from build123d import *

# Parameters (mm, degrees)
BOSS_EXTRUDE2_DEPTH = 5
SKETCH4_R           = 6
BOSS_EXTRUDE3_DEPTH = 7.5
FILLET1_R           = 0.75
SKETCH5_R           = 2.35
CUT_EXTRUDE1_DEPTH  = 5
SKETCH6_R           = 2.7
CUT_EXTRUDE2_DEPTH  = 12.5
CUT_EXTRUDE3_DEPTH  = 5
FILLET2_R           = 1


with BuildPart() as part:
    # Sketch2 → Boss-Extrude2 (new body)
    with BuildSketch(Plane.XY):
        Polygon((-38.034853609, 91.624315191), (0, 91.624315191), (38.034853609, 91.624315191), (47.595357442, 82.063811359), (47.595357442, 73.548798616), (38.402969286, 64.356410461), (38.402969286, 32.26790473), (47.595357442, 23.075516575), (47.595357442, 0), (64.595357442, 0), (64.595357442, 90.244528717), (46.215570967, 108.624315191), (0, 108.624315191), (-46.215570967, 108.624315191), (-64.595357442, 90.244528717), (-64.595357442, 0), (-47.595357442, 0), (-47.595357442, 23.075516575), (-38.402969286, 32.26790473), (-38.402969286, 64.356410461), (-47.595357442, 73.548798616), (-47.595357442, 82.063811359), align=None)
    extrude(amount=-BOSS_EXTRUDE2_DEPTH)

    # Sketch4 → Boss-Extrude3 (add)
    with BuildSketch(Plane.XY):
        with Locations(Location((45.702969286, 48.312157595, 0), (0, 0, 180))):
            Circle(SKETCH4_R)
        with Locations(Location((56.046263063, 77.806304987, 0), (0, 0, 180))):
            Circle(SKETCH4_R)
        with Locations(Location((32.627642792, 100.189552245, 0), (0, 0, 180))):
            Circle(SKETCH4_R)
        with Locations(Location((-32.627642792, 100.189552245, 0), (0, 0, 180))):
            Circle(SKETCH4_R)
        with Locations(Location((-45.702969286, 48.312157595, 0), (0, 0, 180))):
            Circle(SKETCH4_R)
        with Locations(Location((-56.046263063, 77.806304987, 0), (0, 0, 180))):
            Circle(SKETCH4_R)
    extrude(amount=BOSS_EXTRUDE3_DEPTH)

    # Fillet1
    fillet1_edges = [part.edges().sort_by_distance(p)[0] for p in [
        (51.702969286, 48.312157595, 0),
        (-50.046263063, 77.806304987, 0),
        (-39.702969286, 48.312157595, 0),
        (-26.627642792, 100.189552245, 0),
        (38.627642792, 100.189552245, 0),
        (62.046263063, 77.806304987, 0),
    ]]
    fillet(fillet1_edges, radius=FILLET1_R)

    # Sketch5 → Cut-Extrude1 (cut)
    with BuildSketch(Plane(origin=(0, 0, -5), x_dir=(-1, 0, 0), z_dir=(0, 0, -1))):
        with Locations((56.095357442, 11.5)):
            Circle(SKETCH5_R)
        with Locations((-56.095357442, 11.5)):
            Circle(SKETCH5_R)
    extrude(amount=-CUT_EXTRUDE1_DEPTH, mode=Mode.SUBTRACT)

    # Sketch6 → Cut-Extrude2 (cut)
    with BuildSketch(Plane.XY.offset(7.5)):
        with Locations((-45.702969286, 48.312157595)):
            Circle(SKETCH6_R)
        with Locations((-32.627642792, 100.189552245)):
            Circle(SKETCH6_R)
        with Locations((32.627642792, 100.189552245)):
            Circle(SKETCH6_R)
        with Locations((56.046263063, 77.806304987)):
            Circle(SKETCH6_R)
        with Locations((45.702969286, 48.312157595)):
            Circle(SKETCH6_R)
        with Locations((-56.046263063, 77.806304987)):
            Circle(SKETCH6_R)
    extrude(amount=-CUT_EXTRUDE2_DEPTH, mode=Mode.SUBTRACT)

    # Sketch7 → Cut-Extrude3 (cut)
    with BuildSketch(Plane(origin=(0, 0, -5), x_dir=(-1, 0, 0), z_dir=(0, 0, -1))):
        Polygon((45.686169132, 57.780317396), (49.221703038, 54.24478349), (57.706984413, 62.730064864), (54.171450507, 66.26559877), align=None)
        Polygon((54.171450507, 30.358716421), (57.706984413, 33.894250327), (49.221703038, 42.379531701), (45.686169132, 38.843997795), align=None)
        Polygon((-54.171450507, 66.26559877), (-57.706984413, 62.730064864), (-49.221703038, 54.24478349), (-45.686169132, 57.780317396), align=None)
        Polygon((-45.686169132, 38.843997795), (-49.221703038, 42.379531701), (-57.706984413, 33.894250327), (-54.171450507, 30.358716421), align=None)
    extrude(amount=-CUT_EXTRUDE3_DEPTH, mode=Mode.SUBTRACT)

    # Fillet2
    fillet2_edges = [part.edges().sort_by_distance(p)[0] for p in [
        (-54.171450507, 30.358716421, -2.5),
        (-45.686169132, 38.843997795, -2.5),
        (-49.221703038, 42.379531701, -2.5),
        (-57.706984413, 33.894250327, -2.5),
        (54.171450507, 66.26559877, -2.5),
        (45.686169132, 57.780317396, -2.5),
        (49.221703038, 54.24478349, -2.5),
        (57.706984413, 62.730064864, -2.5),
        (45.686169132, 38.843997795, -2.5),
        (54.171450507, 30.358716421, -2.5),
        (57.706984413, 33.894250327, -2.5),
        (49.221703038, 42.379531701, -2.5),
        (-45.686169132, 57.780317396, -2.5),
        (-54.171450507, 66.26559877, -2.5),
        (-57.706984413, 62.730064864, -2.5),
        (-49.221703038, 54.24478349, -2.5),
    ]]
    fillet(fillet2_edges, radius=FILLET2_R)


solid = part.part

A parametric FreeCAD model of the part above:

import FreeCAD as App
import Part
import Sketcher
Q = App.Units.Quantity


def edges_at(feature, points):
    """Names of the edges that pass closest to the given points."""
    edges = feature.Shape.Edges
    near = lambda p: min(range(len(edges)), key=lambda i: edges[i].distToShape(Part.Vertex(*p))[0])
    return sorted({f"Edge{near(p) + 1}" for p in points})


def add_polygon(sketch, points):
    """Adds a closed chain of lines whose ends are joined by coincident constraints."""
    first, n = sketch.GeometryCount, len(points)
    for a, b in zip(points, points[1:] + points[:1]):
        sketch.addGeometry(Part.LineSegment(App.Vector(*a, 0), App.Vector(*b, 0)), False)
    for i in range(n):
        sketch.addConstraint(Sketcher.Constraint("Coincident", first + i, 2, first + (i + 1) % n, 1))

doc = App.newDocument("Part")
body = doc.addObject("PartDesign::Body", "Body")

# Sketch on XY plane
sketch1 = body.newObject("Sketcher::SketchObject", "Sketch")
sketch1.AttachmentSupport = (doc.getObject("XY_Plane"), [""])
sketch1.MapMode = "FlatFace"
add_polygon(sketch1, [(-38.034854, 91.624315), (38.034854, 91.624315), (47.595357, 82.063811), (47.595357, 73.548799), (38.402969, 64.35641), (38.402969, 32.267905), (47.595357, 23.075517), (47.595357, 0), (64.595357, 0), (64.595357, 90.244529), (46.215571, 108.624315), (-46.215571, 108.624315), (-64.595357, 90.244529), (-64.595357, 0), (-47.595357, 0), (-47.595357, 23.075517), (-38.402969, 32.267905), (-38.402969, 64.35641), (-47.595357, 73.548799), (-47.595357, 82.063811)])  # lines 0-19
sketch1.addConstraint(Sketcher.Constraint("Horizontal", 0))
sketch1.addConstraint(Sketcher.Constraint("Vertical", 2))
sketch1.addConstraint(Sketcher.Constraint("Vertical", 4))
sketch1.addConstraint(Sketcher.Constraint("Vertical", 6))
sketch1.addConstraint(Sketcher.Constraint("Horizontal", 7))
sketch1.addConstraint(Sketcher.Constraint("Vertical", 8))
sketch1.addConstraint(Sketcher.Constraint("Horizontal", 10))
sketch1.addConstraint(Sketcher.Constraint("Vertical", 12))
sketch1.addConstraint(Sketcher.Constraint("Horizontal", 13))
sketch1.addConstraint(Sketcher.Constraint("Vertical", 14))
sketch1.addConstraint(Sketcher.Constraint("Vertical", 16))
sketch1.addConstraint(Sketcher.Constraint("Vertical", 18))
sketch1.addConstraint(Sketcher.Constraint("Symmetric", 7, 2, 12, 2, -1, 1))
sketch1.addConstraint(Sketcher.Constraint("Symmetric", 6, 2, 13, 2, -2))
sketch1.addConstraint(Sketcher.Constraint("Symmetric", 4, 2, 15, 2, -2))
sketch1.addConstraint(Sketcher.Constraint("Symmetric", 2, 2, 17, 2, -2))
sketch1.addConstraint(Sketcher.Constraint("Perpendicular", 1, 3))
sketch1.addConstraint(Sketcher.Constraint("Perpendicular", 3, 5))
sketch1.addConstraint(Sketcher.Constraint("Parallel", 5, 9))
sketch1.addConstraint(Sketcher.Constraint("Perpendicular", 9, 11))
sketch1.addConstraint(Sketcher.Constraint("Parallel", 11, 15))
sketch1.addConstraint(Sketcher.Constraint("Perpendicular", 15, 17))
sketch1.addConstraint(Sketcher.Constraint("Perpendicular", 17, 19))
sketch1.addConstraint(Sketcher.Constraint("Horizontal", 8, 2, 11, 2))
sketch1.addConstraint(Sketcher.Constraint("Horizontal", 5, 2, 14, 2))
sketch1.addConstraint(Sketcher.Constraint("Horizontal", 1, 2, 18, 2))
sketch1.addConstraint(Sketcher.Constraint("Vertical", 2, 2, 5, 2))
sketch1.addConstraint(Sketcher.Constraint("DistanceX", 7, 1, 7, 2, Q("17 mm")))
sketch1.addConstraint(Sketcher.Constraint("Distance", 3, Q("13 mm")))
sketch1.addConstraint(Sketcher.Constraint("DistanceY", 0, 2, 9, 2, Q("17 mm")))
sketch1.addConstraint(Sketcher.Constraint("DistanceX", 10, 2, 10, 1, Q("92.431142 mm")))
sketch1.addConstraint(Sketcher.Constraint("DistanceY", 8, 1, 8, 2, Q("90.244529 mm")))
sketch1.addConstraint(Sketcher.Constraint("DistanceY", -1, 1, 2, 2, Q("73.548799 mm")))
sketch1.addConstraint(Sketcher.Constraint("DistanceY", 3, 2, 1, 2, Q("17.707401 mm")))
sketch1.addConstraint(Sketcher.Constraint("DistanceY", 5, 2, 0, 2, Q("68.548799 mm")))
sketch1.addConstraint(Sketcher.Constraint("DistanceX", 3, 2, 9, 2, Q("7.812602 mm")))
pad1 = body.newObject("PartDesign::Pad", "Pad")
pad1.Profile = sketch1
pad1.Length = 5
pad1.Reversed = True

# Sketch on XY plane
sketch2 = body.newObject("Sketcher::SketchObject", "Sketch001")
sketch2.AttachmentSupport = (doc.getObject("XY_Plane"), [""])
sketch2.MapMode = "FlatFace"
sketch2.addGeometry(Part.Circle(App.Vector(45.702969, 48.312158, 0), App.Vector(0, 0, 1), 6), False)
sketch2.addGeometry(Part.Circle(App.Vector(56.046263, 77.806305, 0), App.Vector(0, 0, 1), 6), False)
sketch2.addGeometry(Part.Circle(App.Vector(32.627643, 100.189552, 0), App.Vector(0, 0, 1), 6), False)
sketch2.addGeometry(Part.Circle(App.Vector(-32.627643, 100.189552, 0), App.Vector(0, 0, 1), 6), False)
sketch2.addGeometry(Part.Circle(App.Vector(-45.702969, 48.312158, 0), App.Vector(0, 0, 1), 6), False)
sketch2.addGeometry(Part.Circle(App.Vector(-56.046263, 77.806305, 0), App.Vector(0, 0, 1), 6), False)
sketch2.addConstraint(Sketcher.Constraint("Equal", 0, 1))
sketch2.addConstraint(Sketcher.Constraint("Equal", 1, 2))
sketch2.addConstraint(Sketcher.Constraint("Equal", 2, 3))
sketch2.addConstraint(Sketcher.Constraint("Equal", 3, 4))
sketch2.addConstraint(Sketcher.Constraint("Equal", 4, 5))
sketch2.addConstraint(Sketcher.Constraint("Symmetric", 2, 3, 3, 3, -2))
sketch2.addConstraint(Sketcher.Constraint("Symmetric", 0, 3, 4, 3, -2))
sketch2.addConstraint(Sketcher.Constraint("Symmetric", 1, 3, 5, 3, -2))
sketch2.addConstraint(Sketcher.Constraint("Diameter", 0, Q("12 mm")))
sketch2.addConstraint(Sketcher.Constraint("DistanceX", -1, 1, 0, 3, Q("45.702969 mm")))
sketch2.addConstraint(Sketcher.Constraint("DistanceX", 2, 3, 1, 3, Q("23.41862 mm")))
sketch2.addConstraint(Sketcher.Constraint("DistanceY", -1, 1, 0, 3, Q("48.312158 mm")))
sketch2.addConstraint(Sketcher.Constraint("DistanceX", -1, 1, 1, 3, Q("56.046263 mm")))
sketch2.addConstraint(Sketcher.Constraint("DistanceY", -1, 1, 1, 3, Q("77.806305 mm")))
sketch2.addConstraint(Sketcher.Constraint("DistanceY", -1, 1, 2, 3, Q("100.189552 mm")))
pad2 = body.newObject("PartDesign::Pad", "Pad001")
pad2.Profile = sketch2
pad2.Length = 7.5
doc.recompute()

fillet = body.newObject("PartDesign::Fillet", "Fillet")
fillet.Base = (pad2, edges_at(pad2, [
    (51.703, 48.312, 0),
    (-50.046, 77.806, 0),
    (-39.703, 48.312, 0),
    (-26.628, 100.19, 0),
    (38.628, 100.19, 0),
    (62.046, 77.806, 0),
]))
fillet.Radius = 0.75

# Sketch on XY plane
sketch3 = body.newObject("Sketcher::SketchObject", "Sketch002")
sketch3.AttachmentSupport = (doc.getObject("XY_Plane"), [""])
sketch3.MapMode = "FlatFace"
sketch3.AttachmentOffset = App.Placement(App.Vector(0, 0, -5), App.Rotation())
sketch3.addGeometry(Part.Circle(App.Vector(-56.095357, 11.5, 0), App.Vector(0, 0, 1), 2.35), False)
sketch3.addGeometry(Part.Circle(App.Vector(56.095357, 11.5, 0), App.Vector(0, 0, 1), 2.35), False)
sketch3.addConstraint(Sketcher.Constraint("Equal", 0, 1))
sketch3.addConstraint(Sketcher.Constraint("Symmetric", 0, 3, 1, 3, -2))
sketch3.addConstraint(Sketcher.Constraint("Diameter", 0, Q("4.7 mm")))
sketch3.addConstraint(Sketcher.Constraint("DistanceY", -1, 1, 0, 3, Q("11.5 mm")))
sketch3.addConstraint(Sketcher.Constraint("DistanceX", 0, 3, -1, 1, Q("56.095357 mm")))
pocket1 = body.newObject("PartDesign::Pocket", "Pocket")
pocket1.Profile = sketch3
pocket1.Length = 5
pocket1.Reversed = True

# Sketch on XY plane
sketch4 = body.newObject("Sketcher::SketchObject", "Sketch003")
sketch4.AttachmentSupport = (doc.getObject("XY_Plane"), [""])
sketch4.MapMode = "FlatFace"
sketch4.AttachmentOffset = App.Placement(App.Vector(0, 0, 7.5), App.Rotation())
sketch4.addGeometry(Part.Circle(App.Vector(-45.702969, 48.312158, 0), App.Vector(0, 0, 1), 2.7), False)
sketch4.addGeometry(Part.Circle(App.Vector(-32.627643, 100.189552, 0), App.Vector(0, 0, 1), 2.7), False)
sketch4.addGeometry(Part.Circle(App.Vector(32.627643, 100.189552, 0), App.Vector(0, 0, 1), 2.7), False)
sketch4.addGeometry(Part.Circle(App.Vector(56.046263, 77.806305, 0), App.Vector(0, 0, 1), 2.7), False)
sketch4.addGeometry(Part.Circle(App.Vector(45.702969, 48.312158, 0), App.Vector(0, 0, 1), 2.7), False)
sketch4.addGeometry(Part.Circle(App.Vector(-56.046263, 77.806305, 0), App.Vector(0, 0, 1), 2.7), False)
sketch4.addConstraint(Sketcher.Constraint("Equal", 0, 1))
sketch4.addConstraint(Sketcher.Constraint("Equal", 1, 2))
sketch4.addConstraint(Sketcher.Constraint("Equal", 2, 3))
sketch4.addConstraint(Sketcher.Constraint("Equal", 3, 4))
sketch4.addConstraint(Sketcher.Constraint("Equal", 4, 5))
sketch4.addConstraint(Sketcher.Constraint("Symmetric", 1, 3, 2, 3, -2))
sketch4.addConstraint(Sketcher.Constraint("Symmetric", 0, 3, 4, 3, -2))
sketch4.addConstraint(Sketcher.Constraint("Symmetric", 3, 3, 5, 3, -2))
sketch4.addConstraint(Sketcher.Constraint("Diameter", 0, Q("5.4 mm")))
sketch4.addConstraint(Sketcher.Constraint("DistanceX", 0, 3, -1, 1, Q("45.702969 mm")))
sketch4.addConstraint(Sketcher.Constraint("DistanceX", 2, 3, 3, 3, Q("23.41862 mm")))
sketch4.addConstraint(Sketcher.Constraint("DistanceY", -1, 1, 0, 3, Q("48.312158 mm")))
sketch4.addConstraint(Sketcher.Constraint("DistanceX", 1, 3, -1, 1, Q("32.627643 mm")))
sketch4.addConstraint(Sketcher.Constraint("DistanceY", -1, 1, 1, 3, Q("100.189552 mm")))
sketch4.addConstraint(Sketcher.Constraint("DistanceY", -1, 1, 3, 3, Q("77.806305 mm")))
pocket2 = body.newObject("PartDesign::Pocket", "Pocket001")
pocket2.Profile = sketch4
pocket2.Length = 12.5

# Sketch on XY plane
sketch5 = body.newObject("Sketcher::SketchObject", "Sketch004")
sketch5.AttachmentSupport = (doc.getObject("XY_Plane"), [""])
sketch5.MapMode = "FlatFace"
sketch5.AttachmentOffset = App.Placement(App.Vector(0, 0, -5), App.Rotation())
add_polygon(sketch5, [(-45.686169, 57.780317), (-49.221703, 54.244783), (-57.706984, 62.730065), (-54.171451, 66.265599)])  # lines 0-3
add_polygon(sketch5, [(-54.171451, 30.358716), (-57.706984, 33.89425), (-49.221703, 42.379532), (-45.686169, 38.843998)])  # lines 4-7
add_polygon(sketch5, [(54.171451, 66.265599), (57.706984, 62.730065), (49.221703, 54.244783), (45.686169, 57.780317)])  # lines 8-11
add_polygon(sketch5, [(45.686169, 38.843998), (49.221703, 42.379532), (57.706984, 33.89425), (54.171451, 30.358716)])  # lines 12-15
sketch5.addConstraint(Sketcher.Constraint("Symmetric", 1, 2, 8, 2, -2))
sketch5.addConstraint(Sketcher.Constraint("Symmetric", 0, 2, 9, 2, -2))
sketch5.addConstraint(Sketcher.Constraint("Symmetric", 3, 2, 10, 2, -2))
sketch5.addConstraint(Sketcher.Constraint("Symmetric", 2, 2, 11, 2, -2))
sketch5.addConstraint(Sketcher.Constraint("Symmetric", 5, 2, 12, 2, -2))
sketch5.addConstraint(Sketcher.Constraint("Symmetric", 4, 2, 13, 2, -2))
sketch5.addConstraint(Sketcher.Constraint("Symmetric", 7, 2, 14, 2, -2))
sketch5.addConstraint(Sketcher.Constraint("Symmetric", 6, 2, 15, 2, -2))
sketch5.addConstraint(Sketcher.Constraint("Perpendicular", 0, 1))
sketch5.addConstraint(Sketcher.Constraint("Perpendicular", 1, 2))
sketch5.addConstraint(Sketcher.Constraint("Perpendicular", 2, 3))
sketch5.addConstraint(Sketcher.Constraint("Parallel", 3, 4))
sketch5.addConstraint(Sketcher.Constraint("Perpendicular", 4, 5))
sketch5.addConstraint(Sketcher.Constraint("Perpendicular", 5, 6))
sketch5.addConstraint(Sketcher.Constraint("Perpendicular", 6, 7))
sketch5.addConstraint(Sketcher.Constraint("Perpendicular", 7, 8))
sketch5.addConstraint(Sketcher.Constraint("Vertical", 1, 2, 4, 2))
sketch5.addConstraint(Sketcher.Constraint("Vertical", 0, 2, 5, 2))
sketch5.addConstraint(Sketcher.Constraint("Vertical", 3, 2, 6, 2))
sketch5.addConstraint(Sketcher.Constraint("Distance", 0, Q("5 mm")))
sketch5.addConstraint(Sketcher.Constraint("Distance", 1, Q("12 mm")))
sketch5.addConstraint(Sketcher.Constraint("DistanceY", -1, 1, 2, 2, Q("66.265599 mm")))
sketch5.addConstraint(Sketcher.Constraint("DistanceY", 7, 2, 3, 2, Q("27.421601 mm")))
sketch5.addConstraint(Sketcher.Constraint("DistanceX", 2, 2, -1, 1, Q("54.171451 mm")))
pocket3 = body.newObject("PartDesign::Pocket", "Pocket002")
pocket3.Profile = sketch5
pocket3.Length = 5
pocket3.Reversed = True
doc.recompute()

fillet2 = body.newObject("PartDesign::Fillet", "Fillet001")
fillet2.Base = (pocket3, edges_at(pocket3, [
    (-54.171, 30.359, -2.5),
    (-45.686, 38.844, -2.5),
    (-49.222, 42.38, -2.5),
    (-57.707, 33.894, -2.5),
    (54.171, 66.266, -2.5),
    (45.686, 57.78, -2.5),
    (49.222, 54.245, -2.5),
    (57.707, 62.73, -2.5),
    (45.686, 38.844, -2.5),
    (54.171, 30.359, -2.5),
    (57.707, 33.894, -2.5),
    (49.222, 42.38, -2.5),
    (-45.686, 57.78, -2.5),
    (-54.171, 66.266, -2.5),
    (-57.707, 62.73, -2.5),
    (-49.222, 54.245, -2.5),
]))
fillet2.Radius = 1

doc.recompute()
